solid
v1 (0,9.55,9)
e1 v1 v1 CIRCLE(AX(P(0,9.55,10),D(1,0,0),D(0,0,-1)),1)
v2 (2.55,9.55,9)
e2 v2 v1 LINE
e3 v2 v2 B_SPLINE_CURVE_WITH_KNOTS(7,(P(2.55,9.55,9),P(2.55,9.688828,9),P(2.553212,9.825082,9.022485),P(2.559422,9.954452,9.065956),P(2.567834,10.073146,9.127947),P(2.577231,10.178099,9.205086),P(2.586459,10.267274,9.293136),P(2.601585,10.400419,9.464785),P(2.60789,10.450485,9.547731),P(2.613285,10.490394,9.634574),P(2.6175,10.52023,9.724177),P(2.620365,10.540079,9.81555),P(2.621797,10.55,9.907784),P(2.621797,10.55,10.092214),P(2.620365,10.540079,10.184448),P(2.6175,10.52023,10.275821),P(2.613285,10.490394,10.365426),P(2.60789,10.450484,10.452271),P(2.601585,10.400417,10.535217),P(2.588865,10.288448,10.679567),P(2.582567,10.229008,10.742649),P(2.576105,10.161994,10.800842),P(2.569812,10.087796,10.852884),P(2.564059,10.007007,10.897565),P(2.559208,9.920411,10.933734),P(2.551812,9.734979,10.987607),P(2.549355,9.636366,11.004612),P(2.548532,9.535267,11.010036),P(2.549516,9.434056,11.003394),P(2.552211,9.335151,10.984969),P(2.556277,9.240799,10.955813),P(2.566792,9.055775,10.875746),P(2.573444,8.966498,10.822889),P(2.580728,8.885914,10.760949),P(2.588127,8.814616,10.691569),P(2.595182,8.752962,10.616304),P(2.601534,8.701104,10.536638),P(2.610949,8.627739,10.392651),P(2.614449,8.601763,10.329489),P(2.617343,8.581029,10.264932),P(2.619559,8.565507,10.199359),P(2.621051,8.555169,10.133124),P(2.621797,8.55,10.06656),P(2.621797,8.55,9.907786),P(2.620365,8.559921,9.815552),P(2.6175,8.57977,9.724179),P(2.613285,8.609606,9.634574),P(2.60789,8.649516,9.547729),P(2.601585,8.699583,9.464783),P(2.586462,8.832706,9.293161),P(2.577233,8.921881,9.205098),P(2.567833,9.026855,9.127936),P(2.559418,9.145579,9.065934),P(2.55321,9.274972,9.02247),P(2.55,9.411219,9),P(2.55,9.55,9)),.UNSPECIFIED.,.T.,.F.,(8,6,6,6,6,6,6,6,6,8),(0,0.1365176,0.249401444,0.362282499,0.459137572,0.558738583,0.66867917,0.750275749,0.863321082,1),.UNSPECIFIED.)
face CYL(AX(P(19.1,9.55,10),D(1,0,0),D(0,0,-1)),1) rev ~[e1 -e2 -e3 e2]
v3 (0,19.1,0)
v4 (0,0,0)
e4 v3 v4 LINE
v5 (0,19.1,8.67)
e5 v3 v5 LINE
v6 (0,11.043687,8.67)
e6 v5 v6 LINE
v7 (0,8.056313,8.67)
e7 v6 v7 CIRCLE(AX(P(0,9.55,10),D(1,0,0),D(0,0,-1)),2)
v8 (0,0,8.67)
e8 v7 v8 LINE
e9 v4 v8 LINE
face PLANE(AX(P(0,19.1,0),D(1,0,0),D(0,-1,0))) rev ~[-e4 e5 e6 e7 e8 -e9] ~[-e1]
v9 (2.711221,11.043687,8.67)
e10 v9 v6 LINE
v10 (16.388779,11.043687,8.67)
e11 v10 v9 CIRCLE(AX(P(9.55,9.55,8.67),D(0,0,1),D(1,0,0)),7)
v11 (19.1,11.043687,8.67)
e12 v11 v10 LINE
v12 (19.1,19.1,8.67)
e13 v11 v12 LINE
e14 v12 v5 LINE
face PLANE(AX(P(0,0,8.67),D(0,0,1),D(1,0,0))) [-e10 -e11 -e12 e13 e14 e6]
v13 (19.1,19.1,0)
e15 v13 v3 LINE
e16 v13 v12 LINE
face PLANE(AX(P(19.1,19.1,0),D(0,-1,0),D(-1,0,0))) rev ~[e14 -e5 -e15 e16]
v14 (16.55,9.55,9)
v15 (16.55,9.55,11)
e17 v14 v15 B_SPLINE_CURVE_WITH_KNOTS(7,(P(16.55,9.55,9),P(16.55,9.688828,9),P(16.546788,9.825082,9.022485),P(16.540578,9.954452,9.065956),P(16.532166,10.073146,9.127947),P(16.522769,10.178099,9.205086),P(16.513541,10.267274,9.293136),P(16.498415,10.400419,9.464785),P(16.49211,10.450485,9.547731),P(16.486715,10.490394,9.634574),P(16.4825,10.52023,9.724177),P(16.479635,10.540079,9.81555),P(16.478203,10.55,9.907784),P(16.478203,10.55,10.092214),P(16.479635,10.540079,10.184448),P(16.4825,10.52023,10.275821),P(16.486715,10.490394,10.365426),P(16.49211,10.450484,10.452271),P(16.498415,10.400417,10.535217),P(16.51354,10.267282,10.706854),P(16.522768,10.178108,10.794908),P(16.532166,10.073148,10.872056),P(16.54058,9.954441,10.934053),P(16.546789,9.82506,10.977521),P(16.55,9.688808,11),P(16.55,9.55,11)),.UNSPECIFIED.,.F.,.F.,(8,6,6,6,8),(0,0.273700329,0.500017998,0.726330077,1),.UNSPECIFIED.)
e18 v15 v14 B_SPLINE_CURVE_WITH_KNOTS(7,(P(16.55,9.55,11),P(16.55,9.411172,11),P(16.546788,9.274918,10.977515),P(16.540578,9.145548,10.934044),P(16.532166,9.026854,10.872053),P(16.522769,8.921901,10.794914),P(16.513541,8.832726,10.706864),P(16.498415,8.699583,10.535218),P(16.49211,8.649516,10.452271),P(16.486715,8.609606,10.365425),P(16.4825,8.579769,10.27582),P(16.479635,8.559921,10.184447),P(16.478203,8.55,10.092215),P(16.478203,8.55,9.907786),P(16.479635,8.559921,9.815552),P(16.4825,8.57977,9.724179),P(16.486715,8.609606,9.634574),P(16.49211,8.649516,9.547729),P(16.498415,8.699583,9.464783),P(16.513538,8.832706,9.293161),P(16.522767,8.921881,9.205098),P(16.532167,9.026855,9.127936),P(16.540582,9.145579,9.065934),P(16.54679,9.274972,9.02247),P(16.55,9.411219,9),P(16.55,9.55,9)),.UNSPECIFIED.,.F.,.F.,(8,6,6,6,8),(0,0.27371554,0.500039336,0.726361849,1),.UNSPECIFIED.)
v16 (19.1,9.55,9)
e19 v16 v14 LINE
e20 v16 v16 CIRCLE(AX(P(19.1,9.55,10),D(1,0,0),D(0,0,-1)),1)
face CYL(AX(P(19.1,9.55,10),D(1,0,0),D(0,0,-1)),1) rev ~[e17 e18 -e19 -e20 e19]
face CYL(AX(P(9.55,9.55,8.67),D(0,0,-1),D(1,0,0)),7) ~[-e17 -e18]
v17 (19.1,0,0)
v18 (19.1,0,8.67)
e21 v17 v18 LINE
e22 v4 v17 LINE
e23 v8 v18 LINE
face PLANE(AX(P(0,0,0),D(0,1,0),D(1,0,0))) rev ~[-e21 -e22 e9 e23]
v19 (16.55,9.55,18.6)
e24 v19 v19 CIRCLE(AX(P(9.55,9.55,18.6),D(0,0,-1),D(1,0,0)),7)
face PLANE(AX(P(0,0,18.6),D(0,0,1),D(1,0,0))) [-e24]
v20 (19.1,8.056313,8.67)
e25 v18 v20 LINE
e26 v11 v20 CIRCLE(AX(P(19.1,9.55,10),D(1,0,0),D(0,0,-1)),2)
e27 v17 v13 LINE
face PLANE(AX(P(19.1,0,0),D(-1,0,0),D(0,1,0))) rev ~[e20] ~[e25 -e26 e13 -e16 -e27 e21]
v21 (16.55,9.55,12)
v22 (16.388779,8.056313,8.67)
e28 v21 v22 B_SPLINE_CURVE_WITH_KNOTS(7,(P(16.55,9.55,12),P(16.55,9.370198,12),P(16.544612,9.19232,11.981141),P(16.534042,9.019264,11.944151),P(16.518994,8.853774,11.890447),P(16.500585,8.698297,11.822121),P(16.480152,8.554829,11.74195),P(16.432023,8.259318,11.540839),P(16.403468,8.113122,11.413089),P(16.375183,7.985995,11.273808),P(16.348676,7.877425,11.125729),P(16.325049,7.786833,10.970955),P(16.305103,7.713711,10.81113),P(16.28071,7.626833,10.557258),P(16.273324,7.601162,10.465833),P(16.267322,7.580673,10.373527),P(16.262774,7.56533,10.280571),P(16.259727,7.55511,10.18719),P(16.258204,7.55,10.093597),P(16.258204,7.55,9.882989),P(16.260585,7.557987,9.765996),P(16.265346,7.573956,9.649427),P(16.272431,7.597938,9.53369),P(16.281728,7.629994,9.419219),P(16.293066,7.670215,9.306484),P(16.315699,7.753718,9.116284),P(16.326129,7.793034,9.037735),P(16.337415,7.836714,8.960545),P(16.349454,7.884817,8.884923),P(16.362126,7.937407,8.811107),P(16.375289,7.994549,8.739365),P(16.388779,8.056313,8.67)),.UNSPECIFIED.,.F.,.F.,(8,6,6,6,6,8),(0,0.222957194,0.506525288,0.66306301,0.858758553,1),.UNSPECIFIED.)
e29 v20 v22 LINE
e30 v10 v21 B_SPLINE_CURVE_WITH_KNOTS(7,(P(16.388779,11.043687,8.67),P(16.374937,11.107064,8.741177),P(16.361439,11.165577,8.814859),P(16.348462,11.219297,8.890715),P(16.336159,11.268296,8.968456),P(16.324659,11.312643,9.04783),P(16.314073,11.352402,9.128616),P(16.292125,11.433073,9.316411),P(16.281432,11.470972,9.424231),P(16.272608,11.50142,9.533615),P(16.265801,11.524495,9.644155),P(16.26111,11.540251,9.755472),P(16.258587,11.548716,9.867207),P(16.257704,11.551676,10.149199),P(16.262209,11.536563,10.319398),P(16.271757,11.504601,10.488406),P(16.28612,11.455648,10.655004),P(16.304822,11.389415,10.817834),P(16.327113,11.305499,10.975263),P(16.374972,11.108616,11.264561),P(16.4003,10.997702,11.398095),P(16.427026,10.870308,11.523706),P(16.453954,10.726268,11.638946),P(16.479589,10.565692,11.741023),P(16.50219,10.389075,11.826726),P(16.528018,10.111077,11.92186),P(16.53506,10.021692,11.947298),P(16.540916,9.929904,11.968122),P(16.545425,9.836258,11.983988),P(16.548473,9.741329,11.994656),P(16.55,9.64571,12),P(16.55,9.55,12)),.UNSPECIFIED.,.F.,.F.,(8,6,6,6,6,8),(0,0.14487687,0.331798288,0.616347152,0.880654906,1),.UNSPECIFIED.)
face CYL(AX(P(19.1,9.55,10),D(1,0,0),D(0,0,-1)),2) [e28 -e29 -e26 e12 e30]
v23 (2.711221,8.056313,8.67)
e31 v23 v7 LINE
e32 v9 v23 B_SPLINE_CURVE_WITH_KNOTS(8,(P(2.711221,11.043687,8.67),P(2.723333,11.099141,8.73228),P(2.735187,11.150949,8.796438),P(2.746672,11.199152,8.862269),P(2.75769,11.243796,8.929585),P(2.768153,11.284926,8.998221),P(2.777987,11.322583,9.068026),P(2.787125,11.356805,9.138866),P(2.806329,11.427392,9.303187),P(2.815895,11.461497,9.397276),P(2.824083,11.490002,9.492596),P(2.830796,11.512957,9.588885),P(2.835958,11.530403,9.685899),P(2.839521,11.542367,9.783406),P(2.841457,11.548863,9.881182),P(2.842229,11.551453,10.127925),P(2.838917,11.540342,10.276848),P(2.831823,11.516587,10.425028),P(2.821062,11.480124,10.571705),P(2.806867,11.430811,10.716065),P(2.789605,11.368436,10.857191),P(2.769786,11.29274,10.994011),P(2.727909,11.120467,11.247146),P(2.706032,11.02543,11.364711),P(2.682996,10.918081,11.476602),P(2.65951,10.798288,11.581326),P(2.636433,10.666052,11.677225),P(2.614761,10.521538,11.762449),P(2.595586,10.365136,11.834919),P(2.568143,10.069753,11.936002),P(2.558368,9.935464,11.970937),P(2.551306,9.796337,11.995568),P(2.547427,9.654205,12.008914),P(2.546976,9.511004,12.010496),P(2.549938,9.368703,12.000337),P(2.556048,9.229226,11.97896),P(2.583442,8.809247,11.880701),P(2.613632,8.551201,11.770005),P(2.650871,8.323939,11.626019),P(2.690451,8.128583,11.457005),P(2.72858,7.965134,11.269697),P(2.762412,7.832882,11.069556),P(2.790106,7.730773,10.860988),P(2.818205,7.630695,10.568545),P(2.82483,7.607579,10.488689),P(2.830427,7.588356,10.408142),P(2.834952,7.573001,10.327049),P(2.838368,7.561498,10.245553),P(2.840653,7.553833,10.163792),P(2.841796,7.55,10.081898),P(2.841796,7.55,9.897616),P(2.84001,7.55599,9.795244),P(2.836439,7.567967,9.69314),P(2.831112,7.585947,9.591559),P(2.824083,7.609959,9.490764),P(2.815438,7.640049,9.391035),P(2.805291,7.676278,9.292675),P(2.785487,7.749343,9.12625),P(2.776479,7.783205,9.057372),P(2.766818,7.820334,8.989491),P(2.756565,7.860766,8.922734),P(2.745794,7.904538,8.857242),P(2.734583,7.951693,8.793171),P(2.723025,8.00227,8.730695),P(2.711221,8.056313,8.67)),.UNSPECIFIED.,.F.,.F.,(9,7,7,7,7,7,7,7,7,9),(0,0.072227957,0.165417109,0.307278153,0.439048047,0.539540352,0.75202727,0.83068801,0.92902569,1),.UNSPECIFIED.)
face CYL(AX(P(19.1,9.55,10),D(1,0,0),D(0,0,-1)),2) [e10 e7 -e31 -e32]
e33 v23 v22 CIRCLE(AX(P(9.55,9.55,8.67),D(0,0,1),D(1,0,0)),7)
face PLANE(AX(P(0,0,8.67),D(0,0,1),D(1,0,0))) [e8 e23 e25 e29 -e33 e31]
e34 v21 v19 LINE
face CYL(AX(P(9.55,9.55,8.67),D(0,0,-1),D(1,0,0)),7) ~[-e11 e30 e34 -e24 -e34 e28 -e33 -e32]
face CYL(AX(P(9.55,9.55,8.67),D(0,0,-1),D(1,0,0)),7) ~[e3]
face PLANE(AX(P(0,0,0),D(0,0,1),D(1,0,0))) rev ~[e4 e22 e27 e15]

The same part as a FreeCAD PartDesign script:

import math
import FreeCAD as App
import Part
import Sketcher
from FreeCAD import Vector


def add_polygon(sketch, points):
    """Adds a closed chain of lines whose ends are joined by coincident constraints."""
    first, n = sketch.GeometryCount, len(points)
    for a, b in zip(points, points[1:] + points[:1]):
        sketch.addGeometry(Part.LineSegment(App.Vector(*a, 0), App.Vector(*b, 0)), False)
    for i in range(n):
        sketch.addConstraint(Sketcher.Constraint("Coincident", first + i, 2, first + (i + 1) % n, 1))

doc = App.newDocument("Part")
body = doc.addObject("PartDesign::Body", "Body")

# Sketch on XY plane
sketch1 = doc.addObject("Sketcher::SketchObject", "Sketch")
body.addObject(sketch1)
sketch1.AttachmentSupport = (doc.XY_Plane, [""])
sketch1.MapMode = "FlatFace"
add_polygon(sketch1, [(0, 19.1), (0, 0), (19.1, 0), (19.1, 19.1)])  # lines 0-3
sketch1.addConstraint([
    Sketcher.Constraint("Vertical", 0),
    Sketcher.Constraint("Horizontal", 1),
    Sketcher.Constraint("Vertical", 2),
    Sketcher.Constraint("Horizontal", 3),
    Sketcher.Constraint("Coincident", 0, 2, -1, 1),
    Sketcher.Constraint("Equal", 3, 0),
    Sketcher.Constraint("DistanceX", 1, 1, 1, 2, 19.1),
])
pad1 = doc.addObject("PartDesign::Pad", "Pad")
body.addObject(pad1)
pad1.Profile = sketch1
pad1.Length = 8.67

# Sketch on YZ plane
sketch2 = doc.addObject("Sketcher::SketchObject", "Sketch001")
body.addObject(sketch2)
sketch2.AttachmentSupport = (doc.YZ_Plane, [""])
sketch2.MapMode = "FlatFace"
sketch2.AttachmentOffset = App.Placement(Vector(0, 0, 19.1), App.Rotation())
sketch2.addGeometry([
    Part.ArcOfCircle(Part.Circle(Vector(9.55, 10, 0), Vector(0, 0, 1), 2), math.radians(-41.682325), math.radians(221.682325)),
    Part.LineSegment(Vector(8.056313, 8.67, 0), Vector(11.043687, 8.67, 0)),
    Part.Circle(Vector(9.55, 10, 0), Vector(0, 0, 1), 1),
], False)
sketch2.addConstraint([
    Sketcher.Constraint("Coincident", 0, 1, 1, 2),
    Sketcher.Constraint("Coincident", 1, 1, 0, 2),
    Sketcher.Constraint("Horizontal", 1),
    Sketcher.Constraint("Coincident", 2, 3, 0, 3),
    Sketcher.Constraint("Diameter", 2, 2.0),
    Sketcher.Constraint("Radius", 0, 2.0),
    Sketcher.Constraint("DistanceY", -1, 1, 0, 3, 10.0),
    Sketcher.Constraint("DistanceX", -1, 1, 0, 3, 9.55),
    Sketcher.Constraint("DistanceY", -1, 1, 0, 1, 8.67),
])
pad2 = doc.addObject("PartDesign::Pad", "Pad001")
body.addObject(pad2)
pad2.Profile = sketch2
pad2.Length = 19.1
pad2.Reversed = True

# Sketch on XY plane
sketch3 = doc.addObject("Sketcher::SketchObject", "Sketch002")
body.addObject(sketch3)
sketch3.AttachmentSupport = (doc.XY_Plane, [""])
sketch3.MapMode = "FlatFace"
sketch3.AttachmentOffset = App.Placement(Vector(0, 0, 8.67), App.Rotation())
sketch3.addGeometry(Part.Circle(Vector(9.55, 9.55, 0), Vector(0, 0, 1), 7), False)
sketch3.addConstraint([
    Sketcher.Constraint("Diameter", 0, 14.0),
    Sketcher.Constraint("DistanceX", -1, 1, 0, 3, 9.55),
    Sketcher.Constraint("DistanceY", -1, 1, 0, 3, 9.55),
])
pad3 = doc.addObject("PartDesign::Pad", "Pad002")
body.addObject(pad3)
pad3.Profile = sketch3
pad3.Length = 9.93

doc.recompute()
